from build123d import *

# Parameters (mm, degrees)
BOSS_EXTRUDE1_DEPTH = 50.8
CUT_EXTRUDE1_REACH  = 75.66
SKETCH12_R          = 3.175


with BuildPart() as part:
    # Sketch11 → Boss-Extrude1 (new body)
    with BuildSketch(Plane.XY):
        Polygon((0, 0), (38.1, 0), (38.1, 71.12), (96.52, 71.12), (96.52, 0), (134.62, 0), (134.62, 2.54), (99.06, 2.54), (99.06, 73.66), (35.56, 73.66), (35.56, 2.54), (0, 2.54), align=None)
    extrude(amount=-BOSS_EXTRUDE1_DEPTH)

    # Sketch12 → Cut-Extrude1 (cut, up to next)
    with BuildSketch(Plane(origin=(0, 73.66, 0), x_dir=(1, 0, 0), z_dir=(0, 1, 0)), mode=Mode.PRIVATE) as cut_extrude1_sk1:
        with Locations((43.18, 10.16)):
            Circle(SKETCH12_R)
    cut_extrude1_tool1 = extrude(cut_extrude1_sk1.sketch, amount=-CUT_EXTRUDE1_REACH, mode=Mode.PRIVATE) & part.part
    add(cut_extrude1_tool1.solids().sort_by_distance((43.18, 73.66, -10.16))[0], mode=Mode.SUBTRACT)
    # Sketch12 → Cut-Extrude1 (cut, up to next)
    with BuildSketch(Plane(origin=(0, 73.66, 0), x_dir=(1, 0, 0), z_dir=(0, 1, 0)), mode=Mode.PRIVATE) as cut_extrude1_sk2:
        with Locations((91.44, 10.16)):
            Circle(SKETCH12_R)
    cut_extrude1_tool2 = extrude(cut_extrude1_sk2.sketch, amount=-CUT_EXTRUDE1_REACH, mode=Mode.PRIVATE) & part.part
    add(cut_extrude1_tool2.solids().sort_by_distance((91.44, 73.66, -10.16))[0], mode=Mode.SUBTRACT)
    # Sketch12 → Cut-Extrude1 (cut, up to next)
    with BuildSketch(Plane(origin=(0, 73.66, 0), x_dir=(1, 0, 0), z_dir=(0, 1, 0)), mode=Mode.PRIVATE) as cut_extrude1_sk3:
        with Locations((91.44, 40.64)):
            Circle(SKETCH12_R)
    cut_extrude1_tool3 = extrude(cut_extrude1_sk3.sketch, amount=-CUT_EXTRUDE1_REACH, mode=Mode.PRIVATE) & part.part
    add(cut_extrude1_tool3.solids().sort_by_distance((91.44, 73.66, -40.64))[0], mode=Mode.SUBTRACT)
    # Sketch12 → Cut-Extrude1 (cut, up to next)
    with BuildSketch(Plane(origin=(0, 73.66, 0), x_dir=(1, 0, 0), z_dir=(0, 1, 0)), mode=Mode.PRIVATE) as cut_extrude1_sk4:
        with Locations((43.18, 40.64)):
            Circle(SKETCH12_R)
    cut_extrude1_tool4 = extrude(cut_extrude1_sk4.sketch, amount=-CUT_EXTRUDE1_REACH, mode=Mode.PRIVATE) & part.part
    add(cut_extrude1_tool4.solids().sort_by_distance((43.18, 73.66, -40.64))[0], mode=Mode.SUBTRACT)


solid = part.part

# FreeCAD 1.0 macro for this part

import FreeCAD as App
import Part
import Sketcher
from FreeCAD import Vector
Q = App.Units.Quantity

doc = App.newDocument("Part")
body = doc.addObject("PartDesign::Body", "Body")

# Sketch on XY plane
sketch1 = body.newObject("Sketcher::SketchObject", "Sketch")
sketch1.AttachmentSupport = (doc.getObject("XY_Plane"), [""])
sketch1.MapMode = "FlatFace"
sketch1.addGeometry([
    Part.LineSegment(Vector(0, 0, 0), Vector(38.1, 0, 0)),  # 0
    Part.LineSegment(Vector(38.1, 0, 0), Vector(38.1, 71.12, 0)),  # 1
    Part.LineSegment(Vector(38.1, 71.12, 0), Vector(96.52, 71.12, 0)),  # 2
    Part.LineSegment(Vector(96.52, 71.12, 0), Vector(96.52, 0, 0)),  # 3
    Part.LineSegment(Vector(96.52, 0, 0), Vector(134.62, 0, 0)),  # 4
    Part.LineSegment(Vector(134.62, 0, 0), Vector(134.62, 2.54, 0)),  # 5
    Part.LineSegment(Vector(134.62, 2.54, 0), Vector(99.06, 2.54, 0)),  # 6
    Part.LineSegment(Vector(99.06, 2.54, 0), Vector(99.06, 73.66, 0)),  # 7
    Part.LineSegment(Vector(99.06, 73.66, 0), Vector(35.56, 73.66, 0)),  # 8
    Part.LineSegment(Vector(35.56, 73.66, 0), Vector(35.56, 2.54, 0)),  # 9
    Part.LineSegment(Vector(35.56, 2.54, 0), Vector(0, 2.54, 0)),  # 10
    Part.LineSegment(Vector(0, 2.54, 0), Vector(0, 0, 0)),  # 11
], False)
sketch1.addConstraint([
    Sketcher.Constraint("Coincident", 0, 2, 1, 1),
    Sketcher.Constraint("Coincident", 1, 2, 2, 1),
    Sketcher.Constraint("Coincident", 2, 2, 3, 1),
    Sketcher.Constraint("Coincident", 3, 2, 4, 1),
    Sketcher.Constraint("Coincident", 4, 2, 5, 1),
    Sketcher.Constraint("Coincident", 5, 2, 6, 1),
    Sketcher.Constraint("Coincident", 6, 2, 7, 1),
    Sketcher.Constraint("Coincident", 7, 2, 8, 1),
    Sketcher.Constraint("Coincident", 8, 2, 9, 1),
    Sketcher.Constraint("Coincident", 9, 2, 10, 1),
    Sketcher.Constraint("Coincident", 10, 2, 11, 1),
    Sketcher.Constraint("Coincident", 11, 2, 0, 1),
    Sketcher.Constraint("Horizontal", 0),
    Sketcher.Constraint("Vertical", 1),
    Sketcher.Constraint("Horizontal", 2),
    Sketcher.Constraint("Vertical", 3),
    Sketcher.Constraint("Horizontal", 4),
    Sketcher.Constraint("Vertical", 5),
    Sketcher.Constraint("Horizontal", 6),
    Sketcher.Constraint("Vertical", 7),
    Sketcher.Constraint("Horizontal", 8),
    Sketcher.Constraint("Vertical", 9),
    Sketcher.Constraint("Horizontal", 10),
    Sketcher.Constraint("Vertical", 11),
    Sketcher.Constraint("Coincident", 11, 2, -1, 1),
    Sketcher.Constraint("PointOnObject", 3, 2, -1),
    Sketcher.Constraint("Horizontal", 6, 2, 9, 2),
    Sketcher.Constraint("Equal", 0, 4),
    Sketcher.Constraint("Equal", 6, 10),
    Sketcher.Constraint("Equal", 3, 7),
    Sketcher.Constraint("DistanceX", 0, 1, 0, 2, Q("1.5 in")),
    Sketcher.Constraint("DistanceX", 2, 1, 2, 2, Q("2.3 in")),
    Sketcher.Constraint("DistanceX", 6, 2, 6, 1, Q("1.4 in")),
    Sketcher.Constraint("DistanceY", 1, 1, 1, 2, Q("2.8 in")),
    Sketcher.Constraint("DistanceY", 5, 1, 5, 2, Q("0.1 in")),
])
pad1 = body.newObject("PartDesign::Pad", "Pad")
pad1.Profile = sketch1
pad1.Length = Q("2 in")
pad1.Reversed = True

# Sketch on XZ plane
sketch2 = body.newObject("Sketcher::SketchObject", "Sketch001")
sketch2.AttachmentSupport = (doc.getObject("XZ_Plane"), [""])
sketch2.MapMode = "FlatFace"
sketch2.AttachmentOffset = App.Placement(Vector(0, 0, -2.9 * 25.4), App.Rotation())
sketch2.addGeometry(Part.Circle(Vector(43.18, -10.16, 0), Vector(0, 0, 1), 3.175), False)
sketch2.addConstraint([
    Sketcher.Constraint("Diameter", 0, Q("0.25 in")),
    Sketcher.Constraint("DistanceX", -1, 1, 0, 3, Q("1.7 in")),
    Sketcher.Constraint("DistanceY", 0, 3, -1, 1, Q("0.4 in")),
])
pocket1 = body.newObject("PartDesign::Pocket", "Pocket")
pocket1.Profile = sketch2
pocket1.Type = "UpToFirst"
pocket1.Reversed = True

# Sketch on XZ plane
sketch3 = body.newObject("Sketcher::SketchObject", "Sketch002")
sketch3.AttachmentSupport = (doc.getObject("XZ_Plane"), [""])
sketch3.MapMode = "FlatFace"
sketch3.AttachmentOffset = App.Placement(Vector(0, 0, -2.9 * 25.4), App.Rotation())
sketch3.addGeometry(Part.Circle(Vector(91.44, -10.16, 0), Vector(0, 0, 1), 3.175), False)
sketch3.addConstraint([
    Sketcher.Constraint("Diameter", 0, Q("0.25 in")),
    Sketcher.Constraint("DistanceX", -1, 1, 0, 3, Q("3.6 in")),
    Sketcher.Constraint("DistanceY", 0, 3, -1, 1, Q("0.4 in")),
])
pocket2 = body.newObject("PartDesign::Pocket", "Pocket001")
pocket2.Profile = sketch3
pocket2.Type = "UpToFirst"
pocket2.Reversed = True

# Sketch on XZ plane
sketch4 = body.newObject("Sketcher::SketchObject", "Sketch003")
sketch4.AttachmentSupport = (doc.getObject("XZ_Plane"), [""])
sketch4.MapMode = "FlatFace"
sketch4.AttachmentOffset = App.Placement(Vector(0, 0, -2.9 * 25.4), App.Rotation())
sketch4.addGeometry(Part.Circle(Vector(91.44, -40.64, 0), Vector(0, 0, 1), 3.175), False)
sketch4.addConstraint([
    Sketcher.Constraint("Diameter", 0, Q("0.25 in")),
    Sketcher.Constraint("DistanceX", -1, 1, 0, 3, Q("3.6 in")),
    Sketcher.Constraint("DistanceY", 0, 3, -1, 1, Q("1.6 in")),
])
pocket3 = body.newObject("PartDesign::Pocket", "Pocket002")
pocket3.Profile = sketch4
pocket3.Type = "UpToFirst"
pocket3.Reversed = True

# Sketch on XZ plane
sketch5 = body.newObject("Sketcher::SketchObject", "Sketch004")
sketch5.AttachmentSupport = (doc.getObject("XZ_Plane"), [""])
sketch5.MapMode = "FlatFace"
sketch5.AttachmentOffset = App.Placement(Vector(0, 0, -2.9 * 25.4), App.Rotation())
sketch5.addGeometry(Part.Circle(Vector(43.18, -40.64, 0), Vector(0, 0, 1), 3.175), False)
sketch5.addConstraint([
    Sketcher.Constraint("Diameter", 0, Q("0.25 in")),
    Sketcher.Constraint("DistanceX", -1, 1, 0, 3, Q("1.7 in")),
    Sketcher.Constraint("DistanceY", 0, 3, -1, 1, Q("1.6 in")),
])
pocket4 = body.newObject("PartDesign::Pocket", "Pocket003")
pocket4.Profile = sketch5
pocket4.Type = "UpToFirst"
pocket4.Reversed = True

doc.recompute()
